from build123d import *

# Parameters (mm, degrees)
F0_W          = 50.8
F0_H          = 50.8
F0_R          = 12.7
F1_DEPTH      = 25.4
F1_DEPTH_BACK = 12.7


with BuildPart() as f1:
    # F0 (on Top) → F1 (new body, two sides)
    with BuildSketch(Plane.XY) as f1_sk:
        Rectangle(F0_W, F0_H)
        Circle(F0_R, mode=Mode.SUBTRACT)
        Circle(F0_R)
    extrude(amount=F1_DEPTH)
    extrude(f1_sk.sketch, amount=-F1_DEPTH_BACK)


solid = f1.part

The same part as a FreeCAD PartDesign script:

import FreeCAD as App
import Part
import Sketcher
from FreeCAD import Vector
Q = App.Units.Quantity


def add_polygon(sketch, points):
    """Adds a closed chain of lines whose ends are joined by coincident constraints."""
    first, n = sketch.GeometryCount, len(points)
    for a, b in zip(points, points[1:] + points[:1]):
        sketch.addGeometry(Part.LineSegment(App.Vector(*a, 0), App.Vector(*b, 0)), False)
    for i in range(n):
        sketch.addConstraint(Sketcher.Constraint("Coincident", first + i, 2, first + (i + 1) % n, 1))

doc = App.newDocument("Part")
body = doc.addObject("PartDesign::Body", "Body")

# Sketch on XY plane
sketch1 = doc.addObject("Sketcher::SketchObject", "Sketch")
body.addObject(sketch1)
sketch1.AttachmentSupport = (doc.XY_Plane, [""])
sketch1.MapMode = "FlatFace"
add_polygon(sketch1, [(-25, 25), (-25, -25), (25, -25), (25, 25)])  # lines 0-3
sketch1.addConstraint(Sketcher.Constraint("Vertical", 0))
sketch1.addConstraint(Sketcher.Constraint("Horizontal", 1))
sketch1.addConstraint(Sketcher.Constraint("Vertical", 2))
sketch1.addConstraint(Sketcher.Constraint("Horizontal", 3))
sketch1.addConstraint(Sketcher.Constraint("Symmetric", 0, 2, 2, 2, -1, 1))
sketch1.addConstraint(Sketcher.Constraint("Equal", 3, 0))
sketch1.addConstraint(Sketcher.Constraint("DistanceX", 1, 1, 1, 2, Q("2 in")))
pad1 = doc.addObject("PartDesign::Pad", "Pad")
body.addObject(pad1)
pad1.Profile = sketch1
pad1.Type = "TwoLengths"
pad1.Length = Q("1 in")
pad1.Length2 = Q("0.5 in")

doc.recompute()
